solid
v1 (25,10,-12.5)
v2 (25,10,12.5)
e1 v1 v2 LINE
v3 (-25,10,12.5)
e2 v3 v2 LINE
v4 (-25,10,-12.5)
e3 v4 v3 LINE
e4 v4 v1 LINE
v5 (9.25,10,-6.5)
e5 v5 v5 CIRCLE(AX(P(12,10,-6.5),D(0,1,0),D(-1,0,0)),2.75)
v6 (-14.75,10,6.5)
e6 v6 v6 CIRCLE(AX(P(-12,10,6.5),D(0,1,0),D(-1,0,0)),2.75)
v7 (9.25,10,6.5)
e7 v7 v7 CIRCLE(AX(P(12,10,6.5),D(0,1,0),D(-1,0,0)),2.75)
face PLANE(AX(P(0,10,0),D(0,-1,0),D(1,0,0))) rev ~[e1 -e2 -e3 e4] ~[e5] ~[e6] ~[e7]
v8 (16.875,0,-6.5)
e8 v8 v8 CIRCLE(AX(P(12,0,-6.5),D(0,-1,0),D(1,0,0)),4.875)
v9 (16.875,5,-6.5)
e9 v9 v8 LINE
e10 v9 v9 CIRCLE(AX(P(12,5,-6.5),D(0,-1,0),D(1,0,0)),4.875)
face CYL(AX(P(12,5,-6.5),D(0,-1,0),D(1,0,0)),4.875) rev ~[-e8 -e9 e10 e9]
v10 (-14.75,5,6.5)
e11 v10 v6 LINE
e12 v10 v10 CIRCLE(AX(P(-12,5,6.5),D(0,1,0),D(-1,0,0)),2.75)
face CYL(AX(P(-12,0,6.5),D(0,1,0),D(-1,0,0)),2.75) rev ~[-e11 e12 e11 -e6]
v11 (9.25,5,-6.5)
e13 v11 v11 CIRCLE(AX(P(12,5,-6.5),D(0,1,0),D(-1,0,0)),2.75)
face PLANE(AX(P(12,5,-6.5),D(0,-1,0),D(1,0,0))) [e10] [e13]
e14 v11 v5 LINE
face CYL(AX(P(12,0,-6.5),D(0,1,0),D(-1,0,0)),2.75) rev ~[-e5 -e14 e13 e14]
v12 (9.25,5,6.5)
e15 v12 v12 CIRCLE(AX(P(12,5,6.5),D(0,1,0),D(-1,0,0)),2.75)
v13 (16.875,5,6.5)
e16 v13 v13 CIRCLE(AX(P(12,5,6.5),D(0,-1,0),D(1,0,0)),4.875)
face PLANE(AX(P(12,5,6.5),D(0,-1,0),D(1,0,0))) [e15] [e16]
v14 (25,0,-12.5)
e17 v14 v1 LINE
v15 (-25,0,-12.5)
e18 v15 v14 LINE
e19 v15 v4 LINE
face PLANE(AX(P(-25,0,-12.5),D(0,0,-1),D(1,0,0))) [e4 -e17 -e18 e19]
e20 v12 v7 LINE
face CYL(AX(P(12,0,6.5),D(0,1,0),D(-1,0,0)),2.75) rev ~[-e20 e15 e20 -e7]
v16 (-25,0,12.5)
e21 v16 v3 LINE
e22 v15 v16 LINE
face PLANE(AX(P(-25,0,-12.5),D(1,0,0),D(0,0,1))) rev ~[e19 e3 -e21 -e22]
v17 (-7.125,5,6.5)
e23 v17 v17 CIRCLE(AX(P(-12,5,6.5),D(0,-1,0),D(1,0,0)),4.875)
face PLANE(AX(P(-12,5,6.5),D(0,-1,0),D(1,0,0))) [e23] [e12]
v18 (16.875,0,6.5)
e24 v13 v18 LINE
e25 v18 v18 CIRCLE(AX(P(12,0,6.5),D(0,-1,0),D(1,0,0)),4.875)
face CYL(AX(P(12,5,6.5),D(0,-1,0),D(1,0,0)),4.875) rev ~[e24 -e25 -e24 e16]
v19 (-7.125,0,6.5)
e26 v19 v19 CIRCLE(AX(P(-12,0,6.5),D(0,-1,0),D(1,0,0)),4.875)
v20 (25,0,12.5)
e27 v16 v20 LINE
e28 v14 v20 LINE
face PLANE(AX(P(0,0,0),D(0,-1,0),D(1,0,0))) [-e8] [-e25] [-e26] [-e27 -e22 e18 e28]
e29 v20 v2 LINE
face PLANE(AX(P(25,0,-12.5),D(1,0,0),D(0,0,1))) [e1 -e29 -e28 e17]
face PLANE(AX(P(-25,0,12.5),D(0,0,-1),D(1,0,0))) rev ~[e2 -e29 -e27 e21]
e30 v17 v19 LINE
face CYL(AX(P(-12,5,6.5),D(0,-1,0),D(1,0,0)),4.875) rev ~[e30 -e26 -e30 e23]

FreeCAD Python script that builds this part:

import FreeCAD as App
import Part
import Sketcher


def add_polygon(sketch, points):
    """Adds a closed chain of lines whose ends are joined by coincident constraints."""
    first, n = sketch.GeometryCount, len(points)
    for a, b in zip(points, points[1:] + points[:1]):
        sketch.addGeometry(Part.LineSegment(App.Vector(*a, 0), App.Vector(*b, 0)), False)
    for i in range(n):
        sketch.addConstraint(Sketcher.Constraint("Coincident", first + i, 2, first + (i + 1) % n, 1))

doc = App.newDocument("Part")
body = doc.addObject("PartDesign::Body", "Body")

# Sketch on XZ plane
sketch1 = body.newObject("Sketcher::SketchObject", "Sketch")
sketch1.AttachmentSupport = (doc.getObject("XZ_Plane"), [""])
sketch1.MapMode = "FlatFace"
add_polygon(sketch1, [(-25, 12), (-25, -12), (25, -12), (25, 12)])  # lines 0-3
sketch1.addConstraint(Sketcher.Constraint("Vertical", 0))
sketch1.addConstraint(Sketcher.Constraint("Horizontal", 1))
sketch1.addConstraint(Sketcher.Constraint("Vertical", 2))
sketch1.addConstraint(Sketcher.Constraint("Horizontal", 3))
sketch1.addConstraint(Sketcher.Constraint("Symmetric", 0, 2, 2, 2, -1, 1))
sketch1.addConstraint(Sketcher.Constraint("DistanceX", 1, 1, 1, 2, 50.0))
sketch1.addConstraint(Sketcher.Constraint("DistanceY", 0, 2, 0, 1, 25.0))
pad1 = body.newObject("PartDesign::Pad", "Pad")
pad1.Profile = sketch1
pad1.Length = 10
pad1.Reversed = True

# Sketch on XZ plane
sketch2 = body.newObject("Sketcher::SketchObject", "Sketch001")
sketch2.AttachmentSupport = (doc.getObject("XZ_Plane"), [""])
sketch2.MapMode = "FlatFace"
sketch2.addGeometry(Part.Circle(App.Vector(-12, 6.5, 0), App.Vector(0, 0, 1), 2.8), False)
sketch2.addGeometry(Part.Circle(App.Vector(12, 6.5, 0), App.Vector(0, 0, 1), 2.8), False)
sketch2.addGeometry(Part.Circle(App.Vector(12, -6.5, 0), App.Vector(0, 0, 1), 2.8), False)
sketch2.addConstraint(Sketcher.Constraint("Equal", 0, 1))
sketch2.addConstraint(Sketcher.Constraint("Equal", 1, 2))
sketch2.addConstraint(Sketcher.Constraint("Symmetric", 0, 3, 2, 3, -1, 1))
sketch2.addConstraint(Sketcher.Constraint("Symmetric", 0, 3, 1, 3, -2))
sketch2.addConstraint(Sketcher.Constraint("Diameter", 0, 5.5))
sketch2.addConstraint(Sketcher.Constraint("DistanceX", 0, 3, -1, 1, 12.0))
sketch2.addConstraint(Sketcher.Constraint("DistanceY", 2, 3, 1, 3, 13.0))
doc.recompute()
hole = body.newObject("PartDesign::Hole", "Hole")
hole.Profile = sketch2
hole.ThreadType = "None"
hole.Diameter = 5.5
hole.DepthType = "Dimension"
hole.Depth = 14
hole.DrillPoint = "Angled"
hole.DrillPointAngle = 118
hole.HoleCutType = "Counterbore"
hole.HoleCutDiameter = 9.75
hole.HoleCutDepth = 5

doc.recompute()
